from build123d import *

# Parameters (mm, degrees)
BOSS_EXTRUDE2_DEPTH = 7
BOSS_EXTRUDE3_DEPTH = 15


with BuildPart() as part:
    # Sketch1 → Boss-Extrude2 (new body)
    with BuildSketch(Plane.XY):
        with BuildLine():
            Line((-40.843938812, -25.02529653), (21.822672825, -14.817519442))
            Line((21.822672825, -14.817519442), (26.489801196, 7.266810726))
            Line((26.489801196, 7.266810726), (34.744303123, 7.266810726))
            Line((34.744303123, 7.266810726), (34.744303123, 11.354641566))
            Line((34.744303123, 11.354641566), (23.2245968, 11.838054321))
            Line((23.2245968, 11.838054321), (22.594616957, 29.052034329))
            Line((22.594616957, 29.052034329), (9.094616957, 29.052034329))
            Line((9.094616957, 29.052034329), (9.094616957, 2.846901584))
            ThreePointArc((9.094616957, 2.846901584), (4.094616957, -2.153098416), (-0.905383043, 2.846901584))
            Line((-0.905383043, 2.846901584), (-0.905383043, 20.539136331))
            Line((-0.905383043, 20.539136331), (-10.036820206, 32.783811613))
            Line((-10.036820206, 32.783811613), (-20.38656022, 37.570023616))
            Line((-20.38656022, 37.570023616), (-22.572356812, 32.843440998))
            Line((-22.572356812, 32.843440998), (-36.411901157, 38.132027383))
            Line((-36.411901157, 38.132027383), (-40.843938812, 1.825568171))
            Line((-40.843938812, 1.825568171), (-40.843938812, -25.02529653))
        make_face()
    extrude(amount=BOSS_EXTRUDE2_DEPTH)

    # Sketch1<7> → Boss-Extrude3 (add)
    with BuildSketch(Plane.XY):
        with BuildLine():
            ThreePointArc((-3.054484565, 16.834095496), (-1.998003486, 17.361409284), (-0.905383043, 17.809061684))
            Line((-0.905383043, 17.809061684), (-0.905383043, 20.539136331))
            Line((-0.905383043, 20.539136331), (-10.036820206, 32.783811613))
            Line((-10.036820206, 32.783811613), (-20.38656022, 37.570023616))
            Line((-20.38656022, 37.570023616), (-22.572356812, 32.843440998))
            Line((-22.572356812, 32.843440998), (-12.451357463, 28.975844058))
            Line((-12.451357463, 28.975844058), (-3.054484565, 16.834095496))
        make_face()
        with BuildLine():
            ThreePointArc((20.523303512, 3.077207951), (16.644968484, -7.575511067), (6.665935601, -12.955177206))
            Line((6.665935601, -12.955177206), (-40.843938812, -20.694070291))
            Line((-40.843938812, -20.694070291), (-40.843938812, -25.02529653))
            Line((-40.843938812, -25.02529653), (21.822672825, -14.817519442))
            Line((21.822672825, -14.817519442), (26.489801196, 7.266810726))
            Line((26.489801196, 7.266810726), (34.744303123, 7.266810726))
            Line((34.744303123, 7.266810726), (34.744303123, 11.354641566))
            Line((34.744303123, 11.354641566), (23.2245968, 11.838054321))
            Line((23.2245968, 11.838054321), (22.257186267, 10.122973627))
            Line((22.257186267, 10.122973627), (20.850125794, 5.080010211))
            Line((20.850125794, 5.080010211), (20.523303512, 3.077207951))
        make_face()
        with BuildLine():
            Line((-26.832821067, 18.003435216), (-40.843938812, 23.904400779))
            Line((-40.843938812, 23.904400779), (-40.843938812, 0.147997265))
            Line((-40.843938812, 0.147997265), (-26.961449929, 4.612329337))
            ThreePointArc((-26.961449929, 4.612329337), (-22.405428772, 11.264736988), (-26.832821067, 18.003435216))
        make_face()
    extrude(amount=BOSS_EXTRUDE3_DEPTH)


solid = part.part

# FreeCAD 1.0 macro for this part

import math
import FreeCAD as App
import Part
import Sketcher

V = App.Vector
Q = App.Units.Quantity

doc = App.newDocument("Part")
body = doc.addObject("PartDesign::Body", "Body")

# Sketch on XY plane
sketch1 = body.newObject("Sketcher::SketchObject", "Sketch")
sketch1.AttachmentSupport = (doc.getObject("XY_Plane"), [""])
sketch1.MapMode = "FlatFace"
sketch1.addGeometry(Part.LineSegment(V(-40.8, -25, 0), V(21.8, -14.8, 0)), False)
sketch1.addGeometry(Part.LineSegment(V(21.8, -14.8, 0), V(26.5, 7.3, 0)), False)
sketch1.addGeometry(Part.LineSegment(V(26.5, 7.3, 0), V(34.7, 7.3, 0)), False)
sketch1.addGeometry(Part.LineSegment(V(34.7, 7.3, 0), V(34.7, 11.4, 0)), False)
sketch1.addGeometry(Part.LineSegment(V(34.7, 11.4, 0), V(23.2, 11.8, 0)), False)
sketch1.addGeometry(Part.LineSegment(V(23.2, 11.8, 0), V(22.6, 29.1, 0)), False)
sketch1.addGeometry(Part.LineSegment(V(22.6, 29.1, 0), V(9.1, 29.1, 0)), False)
sketch1.addGeometry(Part.LineSegment(V(9.1, 29.1, 0), V(9.1, 2.8, 0)), False)
sketch1.addGeometry(Part.ArcOfCircle(Part.Circle(V(4.1, 2.8, 0), V(0, 0, 1), 5), math.radians(180), math.radians(360)), False)
sketch1.addGeometry(Part.LineSegment(V(-0.9, 2.8, 0), V(-0.9, 20.5, 0)), False)
sketch1.addGeometry(Part.LineSegment(V(-0.9, 20.5, 0), V(-10, 32.8, 0)), False)
sketch1.addGeometry(Part.LineSegment(V(-10, 32.8, 0), V(-20.4, 37.6, 0)), False)
sketch1.addGeometry(Part.LineSegment(V(-20.4, 37.6, 0), V(-22.6, 32.8, 0)), False)
sketch1.addGeometry(Part.LineSegment(V(-22.6, 32.8, 0), V(-36.4, 38.1, 0)), False)
sketch1.addGeometry(Part.LineSegment(V(-36.4, 38.1, 0), V(-40.8, 1.8, 0)), False)
sketch1.addGeometry(Part.LineSegment(V(-40.8, 1.8, 0), V(-40.8, -25, 0)), False)
sketch1.addConstraint(Sketcher.Constraint("Coincident", 0, 2, 1, 1))
sketch1.addConstraint(Sketcher.Constraint("Coincident", 1, 2, 2, 1))
sketch1.addConstraint(Sketcher.Constraint("Coincident", 2, 2, 3, 1))
sketch1.addConstraint(Sketcher.Constraint("Coincident", 3, 2, 4, 1))
sketch1.addConstraint(Sketcher.Constraint("Coincident", 4, 2, 5, 1))
sketch1.addConstraint(Sketcher.Constraint("Coincident", 5, 2, 6, 1))
sketch1.addConstraint(Sketcher.Constraint("Coincident", 6, 2, 7, 1))
sketch1.addConstraint(Sketcher.Constraint("Tangent", 7, 2, 8, 2))
sketch1.addConstraint(Sketcher.Constraint("Tangent", 8, 1, 9, 1))
sketch1.addConstraint(Sketcher.Constraint("Coincident", 9, 2, 10, 1))
sketch1.addConstraint(Sketcher.Constraint("Coincident", 10, 2, 11, 1))
sketch1.addConstraint(Sketcher.Constraint("Coincident", 11, 2, 12, 1))
sketch1.addConstraint(Sketcher.Constraint("Coincident", 12, 2, 13, 1))
sketch1.addConstraint(Sketcher.Constraint("Coincident", 13, 2, 14, 1))
sketch1.addConstraint(Sketcher.Constraint("Coincident", 14, 2, 15, 1))
sketch1.addConstraint(Sketcher.Constraint("Coincident", 15, 2, 0, 1))
sketch1.addConstraint(Sketcher.Constraint("Horizontal", 2))
sketch1.addConstraint(Sketcher.Constraint("Vertical", 3))
sketch1.addConstraint(Sketcher.Constraint("Horizontal", 6))
sketch1.addConstraint(Sketcher.Constraint("Vertical", 7))
sketch1.addConstraint(Sketcher.Constraint("Vertical", 9))
sketch1.addConstraint(Sketcher.Constraint("Vertical", 15))
sketch1.addConstraint(Sketcher.Constraint("Perpendicular", 11, 12))
sketch1.addConstraint(Sketcher.Constraint("Radius", 8, Q("5 mm")))
sketch1.addConstraint(Sketcher.Constraint("DistanceX", 6, 2, 6, 1, Q("13.5 mm")))
sketch1.addConstraint(Sketcher.Constraint("DistanceX", 2, 1, 2, 2, Q("8.254502 mm")))
sketch1.addConstraint(Sketcher.Constraint("Distance", 1, Q("22.572101 mm")))
sketch1.addConstraint(Sketcher.Constraint("DistanceY", 3, 1, 3, 2, Q("4.087831 mm")))
sketch1.addConstraint(Sketcher.Constraint("DistanceY", -1, 1, 8, 3, Q("2.846902 mm")))
sketch1.addConstraint(Sketcher.Constraint("DistanceX", -1, 1, 1, 2, Q("26.489801 mm")))
sketch1.addConstraint(Sketcher.Constraint("DistanceX", 13, 2, -1, 1, Q("36.411901 mm")))
sketch1.addConstraint(Sketcher.Constraint("DistanceY", 15, 2, 8, 1, Q("27.872198 mm")))
sketch1.addConstraint(Sketcher.Constraint("Distance", 10, Q("15.274659 mm")))
sketch1.addConstraint(Sketcher.Constraint("Distance", 11, Q("11.402848 mm")))
sketch1.addConstraint(Sketcher.Constraint("DistanceY", 7, 2, 7, 1, Q("26.205133 mm")))
sketch1.addConstraint(Sketcher.Constraint("DistanceY", 9, 1, 9, 2, Q("17.692235 mm")))
sketch1.addConstraint(Sketcher.Constraint("DistanceY", 15, 2, 15, 1, Q("26.850865 mm")))
sketch1.addConstraint(Sketcher.Constraint("DistanceY", 0, 2, -1, 1, Q("14.817519 mm")))
sketch1.addConstraint(Sketcher.Constraint("DistanceY", -1, 1, 1, 2, Q("7.266811 mm")))
sketch1.addConstraint(Sketcher.Constraint("DistanceX", 10, 2, -1, 1, Q("10.03682 mm")))
sketch1.addConstraint(Sketcher.Constraint("DistanceY", -1, 1, 10, 2, Q("32.783812 mm")))
sketch1.addConstraint(Sketcher.Constraint("DistanceX", 11, 2, -1, 1, Q("20.38656 mm")))
sketch1.addConstraint(Sketcher.Constraint("DistanceY", -1, 1, 12, 2, Q("32.843441 mm")))
sketch1.addConstraint(Sketcher.Constraint("DistanceX", 14, 2, -1, 1, Q("40.843939 mm")))
sketch1.addConstraint(Sketcher.Constraint("DistanceX", 8, 3, 4, 2, Q("19.12998 mm")))
sketch1.addConstraint(Sketcher.Constraint("DistanceY", 4, 2, 5, 2, Q("17.21398 mm")))
sketch1.addConstraint(Sketcher.Constraint("DistanceY", 9, 2, 13, 2, Q("17.592891 mm")))
pad1 = body.newObject("PartDesign::Pad", "Pad")
pad1.Profile = sketch1
pad1.Length = 7

# Sketch on XY plane
sketch2 = body.newObject("Sketcher::SketchObject", "Sketch001")
sketch2.AttachmentSupport = (doc.getObject("XY_Plane"), [""])
sketch2.MapMode = "FlatFace"
sketch2.addGeometry(Part.ArcOfCircle(Part.Circle(V(4.6, 2.8, 0), V(0, 0, 1), 15.9), math.radians(110.16), math.radians(118.65)), False)
sketch2.addGeometry(Part.LineSegment(V(-0.9, 17.8, 0), V(-0.9, 20.5, 0)), False)
sketch2.addGeometry(Part.LineSegment(V(-0.9, 20.5, 0), V(-10, 32.8, 0)), False)
sketch2.addGeometry(Part.LineSegment(V(-10, 32.8, 0), V(-20.4, 37.6, 0)), False)
sketch2.addGeometry(Part.LineSegment(V(-20.4, 37.6, 0), V(-22.6, 32.8, 0)), False)
sketch2.addGeometry(Part.LineSegment(V(-22.6, 32.8, 0), V(-12.5, 29, 0)), False)
sketch2.addGeometry(Part.LineSegment(V(-12.5, 29, 0), V(-3.1, 16.8, 0)), False)
sketch2.addGeometry(Part.ArcOfCircle(Part.Circle(V(4.6, 2.8, 0), V(0, 0, 1), 15.9), math.radians(-83), math.radians(1)), False)
sketch2.addGeometry(Part.LineSegment(V(6.7, -13, 0), V(-40.8, -20.7, 0)), False)
sketch2.addGeometry(Part.LineSegment(V(-40.8, -20.7, 0), V(-40.8, -25, 0)), False)
sketch2.addGeometry(Part.LineSegment(V(-40.8, -25, 0), V(21.8, -14.8, 0)), False)
sketch2.addGeometry(Part.LineSegment(V(21.8, -14.8, 0), V(26.5, 7.3, 0)), False)
sketch2.addGeometry(Part.LineSegment(V(26.5, 7.3, 0), V(34.7, 7.3, 0)), False)
sketch2.addGeometry(Part.LineSegment(V(34.7, 7.3, 0), V(34.7, 11.4, 0)), False)
sketch2.addGeometry(Part.LineSegment(V(34.7, 11.4, 0), V(23.2, 11.8, 0)), False)
sketch2.addGeometry(Part.LineSegment(V(23.2, 11.8, 0), V(22.3, 10.1, 0)), False)
sketch2.addGeometry(Part.LineSegment(V(22.3, 10.1, 0), V(20.9, 5.1, 0)), False)
sketch2.addGeometry(Part.LineSegment(V(20.9, 5.1, 0), V(20.5, 3.1, 0)), False)
sketch2.addGeometry(Part.LineSegment(V(-26.8, 18, 0), V(-40.8, 23.9, 0)), False)
sketch2.addGeometry(Part.LineSegment(V(-40.8, 23.9, 0), V(-40.8, 0.1, 0)), False)
sketch2.addGeometry(Part.LineSegment(V(-40.8, 0.1, 0), V(-27, 4.6, 0)), False)
sketch2.addGeometry(Part.ArcOfCircle(Part.Circle(V(-29.6, 11.3, 0), V(0, 0, 1), 7.2), math.radians(-68), math.radians(67)), False)
sketch2.addConstraint(Sketcher.Constraint("Coincident", 0, 1, 1, 1))
sketch2.addConstraint(Sketcher.Constraint("Coincident", 1, 2, 2, 1))
sketch2.addConstraint(Sketcher.Constraint("Coincident", 2, 2, 3, 1))
sketch2.addConstraint(Sketcher.Constraint("Coincident", 3, 2, 4, 1))
sketch2.addConstraint(Sketcher.Constraint("Coincident", 4, 2, 5, 1))
sketch2.addConstraint(Sketcher.Constraint("Coincident", 5, 2, 6, 1))
sketch2.addConstraint(Sketcher.Constraint("Coincident", 6, 2, 0, 2))
sketch2.addConstraint(Sketcher.Constraint("Coincident", 7, 1, 8, 1))
sketch2.addConstraint(Sketcher.Constraint("Coincident", 8, 2, 9, 1))
sketch2.addConstraint(Sketcher.Constraint("Coincident", 9, 2, 10, 1))
sketch2.addConstraint(Sketcher.Constraint("Coincident", 10, 2, 11, 1))
sketch2.addConstraint(Sketcher.Constraint("Coincident", 11, 2, 12, 1))
sketch2.addConstraint(Sketcher.Constraint("Coincident", 12, 2, 13, 1))
sketch2.addConstraint(Sketcher.Constraint("Coincident", 13, 2, 14, 1))
sketch2.addConstraint(Sketcher.Constraint("Coincident", 14, 2, 15, 1))
sketch2.addConstraint(Sketcher.Constraint("Coincident", 15, 2, 16, 1))
sketch2.addConstraint(Sketcher.Constraint("Coincident", 16, 2, 17, 1))
sketch2.addConstraint(Sketcher.Constraint("Coincident", 17, 2, 7, 2))
sketch2.addConstraint(Sketcher.Constraint("Coincident", 18, 2, 19, 1))
sketch2.addConstraint(Sketcher.Constraint("Coincident", 19, 2, 20, 1))
sketch2.addConstraint(Sketcher.Constraint("Coincident", 20, 2, 21, 1))
sketch2.addConstraint(Sketcher.Constraint("Tangent", 21, 2, 18, 1))
sketch2.addConstraint(Sketcher.Constraint("Vertical", 1))
sketch2.addConstraint(Sketcher.Constraint("Vertical", 9))
sketch2.addConstraint(Sketcher.Constraint("Horizontal", 12))
sketch2.addConstraint(Sketcher.Constraint("Vertical", 13))
sketch2.addConstraint(Sketcher.Constraint("Vertical", 19))
sketch2.addConstraint(Sketcher.Constraint("Coincident", 7, 3, 0, 3))
sketch2.addConstraint(Sketcher.Constraint("Equal", 0, 7))
sketch2.addConstraint(Sketcher.Constraint("Perpendicular", 3, 4))
sketch2.addConstraint(Sketcher.Constraint("Parallel", 8, 10))
sketch2.addConstraint(Sketcher.Constraint("Vertical", 9, 2, 18, 2))
sketch2.addConstraint(Sketcher.Constraint("DistanceX", 12, 1, 12, 2, Q("8.254502 mm")))
sketch2.addConstraint(Sketcher.Constraint("Radius", 0, Q("15.938287 mm")))
sketch2.addConstraint(Sketcher.Constraint("Radius", 21, Q("7.236543 mm")))
sketch2.addConstraint(Sketcher.Constraint("DistanceX", 4, 2, 5, 2, Q("10.120999 mm")))
sketch2.addConstraint(Sketcher.Constraint("DistanceX", 17, 2, 12, 2, Q("14.221 mm")))
sketch2.addConstraint(Sketcher.Constraint("Distance", 5, Q("10.834802 mm")))
sketch2.addConstraint(Sketcher.Constraint("Distance", 11, Q("22.572101 mm")))
sketch2.addConstraint(Sketcher.Constraint("DistanceY", 13, 1, 13, 2, Q("4.087831 mm")))
sketch2.addConstraint(Sketcher.Constraint("DistanceY", -1, 1, 0, 3, Q("2.846902 mm")))
sketch2.addConstraint(Sketcher.Constraint("DistanceX", -1, 1, 11, 2, Q("26.489801 mm")))
sketch2.addConstraint(Sketcher.Constraint("DistanceY", -1, 1, 18, 2, Q("23.904401 mm")))
sketch2.addConstraint(Sketcher.Constraint("DistanceX", 2, 2, 0, 3, Q("14.623501 mm")))
sketch2.addConstraint(Sketcher.Constraint("DistanceX", 6, 2, 0, 1, Q("2.149102 mm")))
sketch2.addConstraint(Sketcher.Constraint("DistanceX", 8, 2, 21, 3, Q("11.202301 mm")))
sketch2.addConstraint(Sketcher.Constraint("DistanceY", 9, 2, 7, 3, Q("27.872198 mm")))
sketch2.addConstraint(Sketcher.Constraint("DistanceY", 16, 2, 11, 2, Q("2.186801 mm")))
sketch2.addConstraint(Sketcher.Constraint("Distance", 2, Q("15.274659 mm")))
sketch2.addConstraint(Sketcher.Constraint("Distance", 3, Q("11.402848 mm")))
sketch2.addConstraint(Sketcher.Constraint("Distance", 16, Q("5.23558 mm")))
sketch2.addConstraint(Sketcher.Constraint("DistanceY", 1, 1, 1, 2, Q("2.730075 mm")))
sketch2.addConstraint(Sketcher.Constraint("DistanceY", 9, 2, 9, 1, Q("4.331226 mm")))
sketch2.addConstraint(Sketcher.Constraint("DistanceY", 19, 2, 19, 1, Q("23.756404 mm")))
sketch2.addConstraint(Sketcher.Constraint("DistanceX", -1, 1, 0, 3, Q("4.58668 mm")))
sketch2.addConstraint(Sketcher.Constraint("DistanceY", -1, 1, 0, 1, Q("17.809062 mm")))
sketch2.addConstraint(Sketcher.Constraint("DistanceX", 3, 2, -1, 1, Q("20.38656 mm")))
sketch2.addConstraint(Sketcher.Constraint("DistanceY", -1, 1, 4, 2, Q("32.843441 mm")))
sketch2.addConstraint(Sketcher.Constraint("DistanceX", 8, 2, -1, 1, Q("40.843939 mm")))
sketch2.addConstraint(Sketcher.Constraint("DistanceY", 10, 2, -1, 1, Q("14.817519 mm")))
sketch2.addConstraint(Sketcher.Constraint("DistanceY", -1, 1, 11, 2, Q("7.266811 mm")))
sketch2.addConstraint(Sketcher.Constraint("DistanceX", 20, 2, -1, 1, Q("26.96145 mm")))
sketch2.addConstraint(Sketcher.Constraint("DistanceY", -1, 1, 20, 2, Q("4.612329 mm")))
sketch2.addConstraint(Sketcher.Constraint("DistanceX", 15, 2, 14, 2, Q("0.967411 mm")))
sketch2.addConstraint(Sketcher.Constraint("DistanceY", 15, 2, 14, 2, Q("1.715081 mm")))
sketch2.addConstraint(Sketcher.Constraint("DistanceX", 16, 2, 15, 2, Q("1.40706 mm")))
sketch2.addConstraint(Sketcher.Constraint("Distance", 14, Q("11.529845 mm")))
pad2 = body.newObject("PartDesign::Pad", "Pad001")
pad2.Profile = sketch2
pad2.Length = 15

doc.recompute()
